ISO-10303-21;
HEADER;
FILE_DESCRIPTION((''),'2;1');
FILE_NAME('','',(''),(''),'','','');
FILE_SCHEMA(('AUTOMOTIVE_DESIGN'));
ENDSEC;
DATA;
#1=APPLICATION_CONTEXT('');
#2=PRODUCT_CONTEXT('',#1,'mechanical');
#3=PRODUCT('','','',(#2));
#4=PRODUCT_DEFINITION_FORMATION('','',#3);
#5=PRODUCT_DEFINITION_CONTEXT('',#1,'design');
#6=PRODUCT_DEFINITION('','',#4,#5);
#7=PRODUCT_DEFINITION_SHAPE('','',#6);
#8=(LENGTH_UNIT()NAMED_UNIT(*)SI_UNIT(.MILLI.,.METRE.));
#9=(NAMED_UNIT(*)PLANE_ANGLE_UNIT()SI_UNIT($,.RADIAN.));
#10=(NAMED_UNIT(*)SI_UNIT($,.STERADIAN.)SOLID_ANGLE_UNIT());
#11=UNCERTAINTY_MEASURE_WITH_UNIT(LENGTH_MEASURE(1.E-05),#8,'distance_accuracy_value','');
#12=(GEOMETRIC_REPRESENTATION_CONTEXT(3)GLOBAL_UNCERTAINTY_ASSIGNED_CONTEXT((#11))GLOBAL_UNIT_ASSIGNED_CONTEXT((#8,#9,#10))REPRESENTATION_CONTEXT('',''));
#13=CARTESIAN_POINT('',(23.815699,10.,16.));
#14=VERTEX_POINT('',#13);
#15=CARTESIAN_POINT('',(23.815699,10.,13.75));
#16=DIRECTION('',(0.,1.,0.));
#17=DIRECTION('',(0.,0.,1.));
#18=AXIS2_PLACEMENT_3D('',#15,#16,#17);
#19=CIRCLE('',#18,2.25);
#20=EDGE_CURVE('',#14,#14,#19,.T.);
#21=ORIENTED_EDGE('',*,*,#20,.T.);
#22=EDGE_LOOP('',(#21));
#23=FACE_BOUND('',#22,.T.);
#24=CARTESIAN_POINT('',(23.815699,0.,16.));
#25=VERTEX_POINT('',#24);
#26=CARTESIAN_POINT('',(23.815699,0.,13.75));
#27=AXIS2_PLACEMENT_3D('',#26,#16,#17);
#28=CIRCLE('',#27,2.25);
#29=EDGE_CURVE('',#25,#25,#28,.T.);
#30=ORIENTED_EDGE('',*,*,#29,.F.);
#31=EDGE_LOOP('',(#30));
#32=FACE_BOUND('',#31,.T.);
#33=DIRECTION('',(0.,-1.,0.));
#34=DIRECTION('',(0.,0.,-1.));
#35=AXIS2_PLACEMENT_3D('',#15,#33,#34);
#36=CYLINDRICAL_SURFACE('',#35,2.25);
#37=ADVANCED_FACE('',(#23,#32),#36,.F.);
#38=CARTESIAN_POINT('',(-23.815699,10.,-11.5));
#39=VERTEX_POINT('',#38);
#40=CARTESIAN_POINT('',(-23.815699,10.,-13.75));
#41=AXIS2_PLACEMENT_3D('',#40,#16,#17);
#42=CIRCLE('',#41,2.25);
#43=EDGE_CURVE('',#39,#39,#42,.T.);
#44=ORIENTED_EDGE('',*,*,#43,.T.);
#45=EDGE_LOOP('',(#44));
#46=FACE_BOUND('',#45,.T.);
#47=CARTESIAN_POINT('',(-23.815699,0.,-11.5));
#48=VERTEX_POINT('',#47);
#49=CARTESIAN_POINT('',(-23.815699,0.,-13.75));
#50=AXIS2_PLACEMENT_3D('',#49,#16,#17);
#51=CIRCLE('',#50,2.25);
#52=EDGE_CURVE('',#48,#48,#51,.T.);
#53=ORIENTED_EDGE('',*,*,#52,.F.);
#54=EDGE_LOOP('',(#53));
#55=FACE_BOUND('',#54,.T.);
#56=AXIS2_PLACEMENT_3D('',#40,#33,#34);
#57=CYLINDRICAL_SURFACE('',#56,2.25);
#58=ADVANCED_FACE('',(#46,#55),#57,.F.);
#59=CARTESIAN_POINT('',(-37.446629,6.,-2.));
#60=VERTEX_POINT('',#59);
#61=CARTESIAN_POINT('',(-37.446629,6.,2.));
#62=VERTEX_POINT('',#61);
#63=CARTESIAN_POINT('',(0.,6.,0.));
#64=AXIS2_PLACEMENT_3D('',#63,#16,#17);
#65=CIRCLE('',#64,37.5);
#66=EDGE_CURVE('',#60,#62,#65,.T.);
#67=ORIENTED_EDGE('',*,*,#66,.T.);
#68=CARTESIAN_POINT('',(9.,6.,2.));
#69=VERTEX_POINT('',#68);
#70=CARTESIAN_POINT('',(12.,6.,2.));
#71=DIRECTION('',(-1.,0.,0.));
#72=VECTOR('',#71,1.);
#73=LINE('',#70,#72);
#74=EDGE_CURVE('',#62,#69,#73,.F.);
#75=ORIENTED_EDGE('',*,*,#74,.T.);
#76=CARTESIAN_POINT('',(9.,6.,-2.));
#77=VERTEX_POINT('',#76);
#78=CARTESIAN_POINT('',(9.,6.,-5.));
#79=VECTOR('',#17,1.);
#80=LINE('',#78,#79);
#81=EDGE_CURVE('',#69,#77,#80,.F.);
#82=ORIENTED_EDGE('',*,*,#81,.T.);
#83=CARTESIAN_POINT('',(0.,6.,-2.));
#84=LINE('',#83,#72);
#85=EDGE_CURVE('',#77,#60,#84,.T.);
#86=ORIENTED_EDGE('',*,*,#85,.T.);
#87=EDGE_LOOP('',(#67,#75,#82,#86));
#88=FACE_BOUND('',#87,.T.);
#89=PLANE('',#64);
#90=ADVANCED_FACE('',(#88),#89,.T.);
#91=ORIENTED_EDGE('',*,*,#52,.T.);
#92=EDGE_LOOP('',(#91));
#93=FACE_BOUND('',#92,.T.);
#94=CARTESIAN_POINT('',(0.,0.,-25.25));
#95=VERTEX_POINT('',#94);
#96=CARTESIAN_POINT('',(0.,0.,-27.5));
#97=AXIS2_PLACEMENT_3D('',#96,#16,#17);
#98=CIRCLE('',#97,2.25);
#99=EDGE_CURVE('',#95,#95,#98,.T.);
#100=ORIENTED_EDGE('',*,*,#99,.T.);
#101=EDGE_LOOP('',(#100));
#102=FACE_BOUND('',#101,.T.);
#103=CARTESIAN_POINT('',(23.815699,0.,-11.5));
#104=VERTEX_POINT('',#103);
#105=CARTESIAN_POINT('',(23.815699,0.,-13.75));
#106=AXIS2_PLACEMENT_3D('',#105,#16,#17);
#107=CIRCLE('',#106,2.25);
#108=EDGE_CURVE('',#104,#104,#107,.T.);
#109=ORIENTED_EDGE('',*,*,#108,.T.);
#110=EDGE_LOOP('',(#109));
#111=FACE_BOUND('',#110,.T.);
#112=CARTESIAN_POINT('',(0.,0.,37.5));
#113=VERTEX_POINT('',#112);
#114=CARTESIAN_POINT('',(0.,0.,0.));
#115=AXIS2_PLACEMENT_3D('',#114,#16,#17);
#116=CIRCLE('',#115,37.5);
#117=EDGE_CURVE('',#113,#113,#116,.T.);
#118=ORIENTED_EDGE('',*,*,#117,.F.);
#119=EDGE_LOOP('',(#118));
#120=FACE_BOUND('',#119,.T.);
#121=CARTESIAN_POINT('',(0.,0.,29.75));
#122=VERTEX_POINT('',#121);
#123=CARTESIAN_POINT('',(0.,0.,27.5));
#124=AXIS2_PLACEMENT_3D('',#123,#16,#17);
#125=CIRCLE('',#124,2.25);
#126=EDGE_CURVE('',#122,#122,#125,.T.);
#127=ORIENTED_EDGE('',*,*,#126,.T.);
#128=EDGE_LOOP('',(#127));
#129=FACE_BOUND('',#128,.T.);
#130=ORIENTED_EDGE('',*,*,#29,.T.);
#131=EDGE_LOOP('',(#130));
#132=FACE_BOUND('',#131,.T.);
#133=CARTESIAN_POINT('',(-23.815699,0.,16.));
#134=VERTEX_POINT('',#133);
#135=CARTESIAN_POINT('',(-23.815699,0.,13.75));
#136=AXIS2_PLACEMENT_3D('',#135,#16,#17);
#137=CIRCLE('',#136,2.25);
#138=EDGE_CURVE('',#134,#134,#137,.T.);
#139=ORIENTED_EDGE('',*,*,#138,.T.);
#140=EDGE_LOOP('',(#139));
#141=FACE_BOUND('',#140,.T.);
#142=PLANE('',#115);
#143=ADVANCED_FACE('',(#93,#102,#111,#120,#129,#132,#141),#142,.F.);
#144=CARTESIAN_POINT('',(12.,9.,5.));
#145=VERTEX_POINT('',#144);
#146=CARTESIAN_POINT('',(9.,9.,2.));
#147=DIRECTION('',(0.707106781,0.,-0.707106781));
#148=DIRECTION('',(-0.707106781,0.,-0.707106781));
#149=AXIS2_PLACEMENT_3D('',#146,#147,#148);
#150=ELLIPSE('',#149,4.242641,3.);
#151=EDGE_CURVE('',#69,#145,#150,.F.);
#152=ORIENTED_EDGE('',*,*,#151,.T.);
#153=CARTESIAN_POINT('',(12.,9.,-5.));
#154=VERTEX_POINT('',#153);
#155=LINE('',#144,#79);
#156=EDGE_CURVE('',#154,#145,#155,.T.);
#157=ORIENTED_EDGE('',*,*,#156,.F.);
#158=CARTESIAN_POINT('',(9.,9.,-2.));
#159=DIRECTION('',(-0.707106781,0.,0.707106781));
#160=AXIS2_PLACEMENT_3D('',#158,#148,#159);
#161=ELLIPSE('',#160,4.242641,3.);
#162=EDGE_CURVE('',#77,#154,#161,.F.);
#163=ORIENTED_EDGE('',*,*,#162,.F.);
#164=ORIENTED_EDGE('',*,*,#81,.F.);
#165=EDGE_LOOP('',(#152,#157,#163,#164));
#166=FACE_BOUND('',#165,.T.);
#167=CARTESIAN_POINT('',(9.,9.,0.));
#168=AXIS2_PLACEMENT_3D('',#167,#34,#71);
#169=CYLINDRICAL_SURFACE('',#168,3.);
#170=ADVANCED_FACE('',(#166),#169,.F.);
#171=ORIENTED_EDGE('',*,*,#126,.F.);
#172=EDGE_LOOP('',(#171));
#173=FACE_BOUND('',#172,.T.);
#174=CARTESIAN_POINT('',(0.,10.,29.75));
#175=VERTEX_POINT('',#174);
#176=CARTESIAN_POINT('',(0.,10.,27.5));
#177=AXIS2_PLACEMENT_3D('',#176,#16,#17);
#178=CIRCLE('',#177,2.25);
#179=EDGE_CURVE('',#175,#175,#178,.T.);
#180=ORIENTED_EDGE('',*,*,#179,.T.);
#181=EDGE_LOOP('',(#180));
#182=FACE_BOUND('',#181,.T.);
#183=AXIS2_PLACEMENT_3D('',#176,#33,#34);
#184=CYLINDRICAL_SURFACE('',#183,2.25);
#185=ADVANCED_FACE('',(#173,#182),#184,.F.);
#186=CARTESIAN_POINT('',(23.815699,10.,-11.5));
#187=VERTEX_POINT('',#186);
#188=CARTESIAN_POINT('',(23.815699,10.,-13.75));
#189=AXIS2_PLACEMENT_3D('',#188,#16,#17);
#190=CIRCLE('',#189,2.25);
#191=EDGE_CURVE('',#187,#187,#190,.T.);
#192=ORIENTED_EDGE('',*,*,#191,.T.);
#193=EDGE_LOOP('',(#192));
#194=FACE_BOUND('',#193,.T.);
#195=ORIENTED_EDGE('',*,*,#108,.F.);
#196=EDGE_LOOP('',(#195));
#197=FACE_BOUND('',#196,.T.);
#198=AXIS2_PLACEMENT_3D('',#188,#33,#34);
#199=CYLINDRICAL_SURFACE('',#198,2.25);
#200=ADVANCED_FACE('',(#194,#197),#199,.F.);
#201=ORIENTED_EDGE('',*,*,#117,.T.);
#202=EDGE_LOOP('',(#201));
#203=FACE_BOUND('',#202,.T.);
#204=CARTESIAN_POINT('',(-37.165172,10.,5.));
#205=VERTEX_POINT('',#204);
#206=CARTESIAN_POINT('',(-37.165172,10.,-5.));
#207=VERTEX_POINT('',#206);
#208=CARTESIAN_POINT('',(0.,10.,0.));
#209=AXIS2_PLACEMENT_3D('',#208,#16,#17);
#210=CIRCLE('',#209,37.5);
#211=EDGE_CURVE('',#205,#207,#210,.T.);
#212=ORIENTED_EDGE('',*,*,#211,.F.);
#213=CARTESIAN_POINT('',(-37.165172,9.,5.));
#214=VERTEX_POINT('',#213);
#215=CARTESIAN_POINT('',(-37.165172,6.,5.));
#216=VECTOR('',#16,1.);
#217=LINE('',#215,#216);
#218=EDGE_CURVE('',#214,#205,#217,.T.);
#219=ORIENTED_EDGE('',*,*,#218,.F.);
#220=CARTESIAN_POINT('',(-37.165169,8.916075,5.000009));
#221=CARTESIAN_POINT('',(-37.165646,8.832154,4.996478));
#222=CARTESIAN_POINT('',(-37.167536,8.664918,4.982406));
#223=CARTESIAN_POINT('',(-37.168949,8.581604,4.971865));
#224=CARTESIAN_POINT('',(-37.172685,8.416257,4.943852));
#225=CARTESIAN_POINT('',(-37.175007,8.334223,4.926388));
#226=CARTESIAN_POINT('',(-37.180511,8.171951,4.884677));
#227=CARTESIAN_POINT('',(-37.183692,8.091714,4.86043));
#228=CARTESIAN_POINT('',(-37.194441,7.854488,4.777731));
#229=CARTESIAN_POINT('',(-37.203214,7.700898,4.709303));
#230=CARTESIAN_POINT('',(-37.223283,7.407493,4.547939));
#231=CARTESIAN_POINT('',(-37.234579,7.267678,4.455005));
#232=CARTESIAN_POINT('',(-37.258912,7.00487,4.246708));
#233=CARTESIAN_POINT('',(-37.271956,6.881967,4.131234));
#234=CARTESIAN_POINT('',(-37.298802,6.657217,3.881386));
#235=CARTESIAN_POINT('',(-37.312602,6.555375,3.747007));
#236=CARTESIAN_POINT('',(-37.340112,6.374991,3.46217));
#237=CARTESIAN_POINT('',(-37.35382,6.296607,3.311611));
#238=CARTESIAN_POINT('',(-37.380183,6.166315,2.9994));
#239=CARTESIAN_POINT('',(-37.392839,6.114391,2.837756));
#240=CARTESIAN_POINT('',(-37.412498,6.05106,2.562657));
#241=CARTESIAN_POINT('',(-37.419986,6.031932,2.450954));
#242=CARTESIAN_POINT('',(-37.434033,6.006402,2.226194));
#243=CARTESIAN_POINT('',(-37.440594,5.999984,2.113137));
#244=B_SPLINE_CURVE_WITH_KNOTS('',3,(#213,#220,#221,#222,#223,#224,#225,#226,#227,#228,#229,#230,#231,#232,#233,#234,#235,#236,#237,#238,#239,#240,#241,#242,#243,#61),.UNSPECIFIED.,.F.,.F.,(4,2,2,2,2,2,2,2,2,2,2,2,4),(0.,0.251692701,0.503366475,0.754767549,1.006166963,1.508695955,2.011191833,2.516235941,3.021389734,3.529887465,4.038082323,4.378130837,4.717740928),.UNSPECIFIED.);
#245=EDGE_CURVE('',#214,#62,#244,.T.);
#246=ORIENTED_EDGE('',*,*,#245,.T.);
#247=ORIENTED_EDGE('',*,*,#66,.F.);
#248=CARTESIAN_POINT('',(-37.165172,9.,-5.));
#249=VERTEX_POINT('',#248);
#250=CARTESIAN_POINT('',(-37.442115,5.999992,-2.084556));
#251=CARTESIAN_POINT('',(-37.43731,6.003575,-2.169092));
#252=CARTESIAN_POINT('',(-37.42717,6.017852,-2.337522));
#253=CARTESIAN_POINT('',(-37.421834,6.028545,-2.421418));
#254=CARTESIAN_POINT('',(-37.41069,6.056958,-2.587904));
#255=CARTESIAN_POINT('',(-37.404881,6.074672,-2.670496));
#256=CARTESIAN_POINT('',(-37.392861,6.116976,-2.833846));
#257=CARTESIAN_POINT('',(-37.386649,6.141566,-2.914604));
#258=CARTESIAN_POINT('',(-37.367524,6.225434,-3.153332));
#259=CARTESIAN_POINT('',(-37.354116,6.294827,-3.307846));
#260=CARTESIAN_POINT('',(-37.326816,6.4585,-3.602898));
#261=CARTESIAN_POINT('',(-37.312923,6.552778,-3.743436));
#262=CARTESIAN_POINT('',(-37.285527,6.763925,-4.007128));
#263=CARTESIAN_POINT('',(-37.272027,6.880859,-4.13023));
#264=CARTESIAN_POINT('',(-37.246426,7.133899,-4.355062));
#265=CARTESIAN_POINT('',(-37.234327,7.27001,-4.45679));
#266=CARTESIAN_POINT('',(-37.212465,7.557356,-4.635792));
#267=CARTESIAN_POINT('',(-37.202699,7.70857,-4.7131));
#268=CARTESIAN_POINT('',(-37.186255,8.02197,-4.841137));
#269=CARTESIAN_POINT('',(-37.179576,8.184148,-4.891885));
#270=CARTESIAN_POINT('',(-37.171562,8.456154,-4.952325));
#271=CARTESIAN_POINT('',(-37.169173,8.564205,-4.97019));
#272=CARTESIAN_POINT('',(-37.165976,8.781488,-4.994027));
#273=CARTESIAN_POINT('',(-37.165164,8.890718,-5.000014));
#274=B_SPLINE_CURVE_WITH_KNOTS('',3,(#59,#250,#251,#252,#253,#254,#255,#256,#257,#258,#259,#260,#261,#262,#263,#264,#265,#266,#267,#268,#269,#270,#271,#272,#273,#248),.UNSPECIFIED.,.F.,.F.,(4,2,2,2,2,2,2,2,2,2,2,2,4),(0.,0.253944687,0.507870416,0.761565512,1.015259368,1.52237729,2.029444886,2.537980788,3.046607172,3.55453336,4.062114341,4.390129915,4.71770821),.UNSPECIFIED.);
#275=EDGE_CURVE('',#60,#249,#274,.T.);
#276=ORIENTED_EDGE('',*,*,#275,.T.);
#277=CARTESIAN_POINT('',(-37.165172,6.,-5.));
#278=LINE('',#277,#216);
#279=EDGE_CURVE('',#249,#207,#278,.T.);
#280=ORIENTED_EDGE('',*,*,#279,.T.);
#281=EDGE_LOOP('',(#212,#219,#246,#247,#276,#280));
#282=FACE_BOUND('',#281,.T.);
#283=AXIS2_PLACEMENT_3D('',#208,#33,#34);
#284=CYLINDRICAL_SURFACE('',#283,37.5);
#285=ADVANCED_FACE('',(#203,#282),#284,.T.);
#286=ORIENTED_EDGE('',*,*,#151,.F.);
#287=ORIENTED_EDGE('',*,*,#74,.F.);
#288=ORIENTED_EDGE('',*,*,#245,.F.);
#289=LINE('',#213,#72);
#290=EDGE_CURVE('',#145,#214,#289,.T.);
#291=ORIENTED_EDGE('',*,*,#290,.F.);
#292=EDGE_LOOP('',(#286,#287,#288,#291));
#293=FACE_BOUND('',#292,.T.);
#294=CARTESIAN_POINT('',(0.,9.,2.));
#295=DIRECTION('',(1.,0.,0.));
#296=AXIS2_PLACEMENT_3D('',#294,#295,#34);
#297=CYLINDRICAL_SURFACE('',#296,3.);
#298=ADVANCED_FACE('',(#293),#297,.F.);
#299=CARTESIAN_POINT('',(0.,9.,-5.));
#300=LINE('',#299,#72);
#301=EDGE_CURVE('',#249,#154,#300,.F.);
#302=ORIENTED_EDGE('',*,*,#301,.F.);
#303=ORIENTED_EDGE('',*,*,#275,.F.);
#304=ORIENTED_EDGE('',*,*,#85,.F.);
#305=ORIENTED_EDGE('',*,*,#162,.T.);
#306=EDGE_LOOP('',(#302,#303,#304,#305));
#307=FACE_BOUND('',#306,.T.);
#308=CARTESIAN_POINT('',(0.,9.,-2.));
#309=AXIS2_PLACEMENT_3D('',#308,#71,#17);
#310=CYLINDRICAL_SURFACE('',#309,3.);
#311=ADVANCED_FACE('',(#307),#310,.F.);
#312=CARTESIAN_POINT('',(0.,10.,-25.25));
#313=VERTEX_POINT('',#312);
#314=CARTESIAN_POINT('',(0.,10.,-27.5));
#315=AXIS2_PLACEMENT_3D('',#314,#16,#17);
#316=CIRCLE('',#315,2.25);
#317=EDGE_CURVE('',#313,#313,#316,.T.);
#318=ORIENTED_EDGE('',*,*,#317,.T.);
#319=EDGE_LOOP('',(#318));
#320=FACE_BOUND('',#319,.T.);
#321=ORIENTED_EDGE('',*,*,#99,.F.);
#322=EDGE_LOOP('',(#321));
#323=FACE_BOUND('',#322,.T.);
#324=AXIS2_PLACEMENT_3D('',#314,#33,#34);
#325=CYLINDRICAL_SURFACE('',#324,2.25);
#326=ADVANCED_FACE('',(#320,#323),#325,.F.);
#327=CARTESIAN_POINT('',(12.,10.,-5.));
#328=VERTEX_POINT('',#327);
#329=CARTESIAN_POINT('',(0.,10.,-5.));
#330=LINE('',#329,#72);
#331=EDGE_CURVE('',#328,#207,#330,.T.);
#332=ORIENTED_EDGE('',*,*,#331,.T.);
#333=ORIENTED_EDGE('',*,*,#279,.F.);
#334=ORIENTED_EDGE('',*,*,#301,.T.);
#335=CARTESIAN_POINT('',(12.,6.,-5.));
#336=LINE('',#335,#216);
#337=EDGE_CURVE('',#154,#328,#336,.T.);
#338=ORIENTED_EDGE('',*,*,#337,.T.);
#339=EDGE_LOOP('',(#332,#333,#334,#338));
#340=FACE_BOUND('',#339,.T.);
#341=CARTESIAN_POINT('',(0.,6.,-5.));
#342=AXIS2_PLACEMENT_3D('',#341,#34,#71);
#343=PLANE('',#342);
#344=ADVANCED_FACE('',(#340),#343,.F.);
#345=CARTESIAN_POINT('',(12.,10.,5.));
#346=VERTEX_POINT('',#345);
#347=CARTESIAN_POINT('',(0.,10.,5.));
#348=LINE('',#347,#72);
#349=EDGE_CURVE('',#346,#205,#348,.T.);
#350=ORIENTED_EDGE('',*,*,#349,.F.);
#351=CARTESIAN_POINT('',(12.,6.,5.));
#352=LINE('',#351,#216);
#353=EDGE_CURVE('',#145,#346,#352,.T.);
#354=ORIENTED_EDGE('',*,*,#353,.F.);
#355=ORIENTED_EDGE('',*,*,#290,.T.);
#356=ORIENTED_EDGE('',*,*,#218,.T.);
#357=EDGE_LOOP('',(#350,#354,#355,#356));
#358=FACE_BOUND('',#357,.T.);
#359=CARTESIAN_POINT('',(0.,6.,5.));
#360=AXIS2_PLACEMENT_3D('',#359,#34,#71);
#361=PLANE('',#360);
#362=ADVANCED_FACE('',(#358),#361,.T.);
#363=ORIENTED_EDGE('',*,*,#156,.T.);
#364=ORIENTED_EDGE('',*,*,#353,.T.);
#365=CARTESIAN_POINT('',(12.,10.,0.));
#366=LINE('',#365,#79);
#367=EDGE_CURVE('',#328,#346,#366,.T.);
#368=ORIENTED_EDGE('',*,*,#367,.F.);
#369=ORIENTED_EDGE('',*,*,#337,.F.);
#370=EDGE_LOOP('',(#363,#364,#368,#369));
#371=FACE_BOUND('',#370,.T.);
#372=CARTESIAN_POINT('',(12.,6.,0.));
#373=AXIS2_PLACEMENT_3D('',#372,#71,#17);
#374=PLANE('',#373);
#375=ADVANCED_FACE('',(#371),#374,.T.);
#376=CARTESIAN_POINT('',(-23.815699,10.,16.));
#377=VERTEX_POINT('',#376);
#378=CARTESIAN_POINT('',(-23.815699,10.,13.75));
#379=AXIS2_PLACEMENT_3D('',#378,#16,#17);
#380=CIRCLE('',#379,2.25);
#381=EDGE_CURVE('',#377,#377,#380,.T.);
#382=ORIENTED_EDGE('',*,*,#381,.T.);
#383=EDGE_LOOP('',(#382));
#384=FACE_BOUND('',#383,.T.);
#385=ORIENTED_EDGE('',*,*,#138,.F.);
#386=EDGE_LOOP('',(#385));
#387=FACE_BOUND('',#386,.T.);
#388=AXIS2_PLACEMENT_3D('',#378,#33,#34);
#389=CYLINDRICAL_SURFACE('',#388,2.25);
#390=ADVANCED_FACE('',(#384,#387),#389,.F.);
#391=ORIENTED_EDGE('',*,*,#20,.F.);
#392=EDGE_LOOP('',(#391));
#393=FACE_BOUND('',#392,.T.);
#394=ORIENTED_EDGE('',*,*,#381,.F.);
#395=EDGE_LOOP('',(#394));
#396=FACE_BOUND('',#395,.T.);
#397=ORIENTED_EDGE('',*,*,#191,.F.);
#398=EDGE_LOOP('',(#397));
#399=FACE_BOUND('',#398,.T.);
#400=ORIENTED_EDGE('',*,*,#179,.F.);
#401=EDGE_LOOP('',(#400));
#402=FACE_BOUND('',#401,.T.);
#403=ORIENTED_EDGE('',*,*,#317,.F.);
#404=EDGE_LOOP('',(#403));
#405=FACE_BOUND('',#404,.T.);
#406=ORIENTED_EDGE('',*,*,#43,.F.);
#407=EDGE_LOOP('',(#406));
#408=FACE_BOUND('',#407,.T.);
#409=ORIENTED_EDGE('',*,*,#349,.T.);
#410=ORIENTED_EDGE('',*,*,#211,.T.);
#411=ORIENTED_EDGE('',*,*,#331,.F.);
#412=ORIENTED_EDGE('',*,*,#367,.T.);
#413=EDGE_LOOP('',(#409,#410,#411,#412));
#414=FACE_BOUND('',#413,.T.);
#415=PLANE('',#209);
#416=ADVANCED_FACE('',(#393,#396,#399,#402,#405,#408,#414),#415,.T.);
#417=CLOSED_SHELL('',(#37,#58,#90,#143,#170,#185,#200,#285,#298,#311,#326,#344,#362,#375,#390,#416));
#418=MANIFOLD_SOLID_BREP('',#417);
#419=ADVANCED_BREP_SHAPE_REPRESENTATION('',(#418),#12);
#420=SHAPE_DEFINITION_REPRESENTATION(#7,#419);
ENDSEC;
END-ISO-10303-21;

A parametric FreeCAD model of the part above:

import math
import FreeCAD as App
import Part
import Sketcher

V = App.Vector


def edges_at(feature, points):
    """Names of the edges that pass closest to the given points."""
    edges = feature.Shape.Edges
    near = lambda p: min(range(len(edges)), key=lambda i: edges[i].distToShape(Part.Vertex(*p))[0])
    return sorted({f"Edge{near(p) + 1}" for p in points})

doc = App.newDocument("Part")
body = doc.addObject("PartDesign::Body", "Body")

sketch1 = doc.addObject("Sketcher::SketchObject", "Sketch")
body.addObject(sketch1)
sketch1.AttachmentSupport = (doc.XZ_Plane, [""])
sketch1.MapMode = "FlatFace"
sketch1.addGeometry([
    Part.Circle(V(0, 0, 0), V(0, 0, 1), 37.5),
    Part.Circle(V(-23.815699, 13.75, 0), V(0, 0, 1), 2.25),
    Part.Circle(V(0, 27.5, 0), V(0, 0, 1), 2.25),
    Part.Circle(V(23.815699, 13.75, 0), V(0, 0, 1), 2.25),
    Part.Circle(V(-23.815699, -13.75, 0), V(0, 0, 1), 2.25),
    Part.Circle(V(23.815699, -13.75, 0), V(0, 0, 1), 2.25),
    Part.Circle(V(0, -27.5, 0), V(0, 0, 1), 2.25),
], False)
sketch1.addConstraint([
    Sketcher.Constraint("Coincident", 0, 3, -1, 1),
    Sketcher.Constraint("Equal", 1, 2),
    Sketcher.Constraint("Equal", 2, 3),
    Sketcher.Constraint("Equal", 3, 4),
    Sketcher.Constraint("Equal", 4, 5),
    Sketcher.Constraint("Equal", 5, 6),
    Sketcher.Constraint("Symmetric", 3, 3, 4, 3, -1, 1),
    Sketcher.Constraint("Symmetric", 1, 3, 5, 3, -1, 1),
    Sketcher.Constraint("Symmetric", 2, 3, 6, 3, -1, 1),
    Sketcher.Constraint("Symmetric", 1, 3, 3, 3, -2),
    Sketcher.Constraint("PointOnObject", 2, 3, -2),
    Sketcher.Constraint("Diameter", 0, 75.0),
    Sketcher.Constraint("Diameter", 1, 4.5),
    Sketcher.Constraint("DistanceY", -1, 1, 2, 3, 27.5),
    Sketcher.Constraint("DistanceY", 4, 3, 1, 3, 27.5),
    Sketcher.Constraint("DistanceX", 1, 3, -1, 1, 23.815699),
])
pad1 = doc.addObject("PartDesign::Pad", "Pad")
body.addObject(pad1)
pad1.Profile = sketch1
pad1.Length = 10
pad1.Reversed = True

sketch2 = doc.addObject("Sketcher::SketchObject", "Sketch001")
body.addObject(sketch2)
sketch2.AttachmentSupport = (doc.XZ_Plane, [""])
sketch2.MapMode = "FlatFace"
sketch2.AttachmentOffset = App.Placement(V(0, 0, -10), App.Rotation())
sketch2.addGeometry([
    Part.LineSegment(V(12, 5, 0), V(12, -5, 0)),
    Part.LineSegment(V(12, -5, 0), V(-37.165172, -5, 0)),
    Part.ArcOfCircle(Part.Circle(V(0, 0, 0), V(0, 0, 1), 37.5), math.radians(172.337744), math.radians(187.662256)),
    Part.LineSegment(V(-37.165172, 5, 0), V(12, 5, 0)),
], False)
sketch2.addConstraint([
    Sketcher.Constraint("Coincident", 0, 2, 1, 1),
    Sketcher.Constraint("Coincident", 1, 2, 2, 2),
    Sketcher.Constraint("Coincident", 2, 1, 3, 1),
    Sketcher.Constraint("Coincident", 3, 2, 0, 1),
    Sketcher.Constraint("Vertical", 0),
    Sketcher.Constraint("Horizontal", 1),
    Sketcher.Constraint("Horizontal", 3),
    Sketcher.Constraint("Coincident", 2, 3, -1, 1),
    Sketcher.Constraint("Vertical", 1, 2, 2, 1),
    Sketcher.Constraint("Radius", 2, 37.5),
    Sketcher.Constraint("DistanceY", 0, 2, 0, 1, 10.0),
    Sketcher.Constraint("DistanceX", -1, 1, 0, 2, 12.0),
])
pocket1 = doc.addObject("PartDesign::Pocket", "Pocket")
body.addObject(pocket1)
pocket1.Profile = sketch2
pocket1.Length = 4
pocket1.Reversed = True
doc.recompute()

fillet = doc.addObject("PartDesign::Fillet", "Fillet")
body.addObject(fillet)
fillet.Base = (pocket1, edges_at(pocket1, [(-12.583, 6, -5), (12, 6, 0), (-12.583, 6, 5)]))
fillet.Radius = 3

doc.recompute()
